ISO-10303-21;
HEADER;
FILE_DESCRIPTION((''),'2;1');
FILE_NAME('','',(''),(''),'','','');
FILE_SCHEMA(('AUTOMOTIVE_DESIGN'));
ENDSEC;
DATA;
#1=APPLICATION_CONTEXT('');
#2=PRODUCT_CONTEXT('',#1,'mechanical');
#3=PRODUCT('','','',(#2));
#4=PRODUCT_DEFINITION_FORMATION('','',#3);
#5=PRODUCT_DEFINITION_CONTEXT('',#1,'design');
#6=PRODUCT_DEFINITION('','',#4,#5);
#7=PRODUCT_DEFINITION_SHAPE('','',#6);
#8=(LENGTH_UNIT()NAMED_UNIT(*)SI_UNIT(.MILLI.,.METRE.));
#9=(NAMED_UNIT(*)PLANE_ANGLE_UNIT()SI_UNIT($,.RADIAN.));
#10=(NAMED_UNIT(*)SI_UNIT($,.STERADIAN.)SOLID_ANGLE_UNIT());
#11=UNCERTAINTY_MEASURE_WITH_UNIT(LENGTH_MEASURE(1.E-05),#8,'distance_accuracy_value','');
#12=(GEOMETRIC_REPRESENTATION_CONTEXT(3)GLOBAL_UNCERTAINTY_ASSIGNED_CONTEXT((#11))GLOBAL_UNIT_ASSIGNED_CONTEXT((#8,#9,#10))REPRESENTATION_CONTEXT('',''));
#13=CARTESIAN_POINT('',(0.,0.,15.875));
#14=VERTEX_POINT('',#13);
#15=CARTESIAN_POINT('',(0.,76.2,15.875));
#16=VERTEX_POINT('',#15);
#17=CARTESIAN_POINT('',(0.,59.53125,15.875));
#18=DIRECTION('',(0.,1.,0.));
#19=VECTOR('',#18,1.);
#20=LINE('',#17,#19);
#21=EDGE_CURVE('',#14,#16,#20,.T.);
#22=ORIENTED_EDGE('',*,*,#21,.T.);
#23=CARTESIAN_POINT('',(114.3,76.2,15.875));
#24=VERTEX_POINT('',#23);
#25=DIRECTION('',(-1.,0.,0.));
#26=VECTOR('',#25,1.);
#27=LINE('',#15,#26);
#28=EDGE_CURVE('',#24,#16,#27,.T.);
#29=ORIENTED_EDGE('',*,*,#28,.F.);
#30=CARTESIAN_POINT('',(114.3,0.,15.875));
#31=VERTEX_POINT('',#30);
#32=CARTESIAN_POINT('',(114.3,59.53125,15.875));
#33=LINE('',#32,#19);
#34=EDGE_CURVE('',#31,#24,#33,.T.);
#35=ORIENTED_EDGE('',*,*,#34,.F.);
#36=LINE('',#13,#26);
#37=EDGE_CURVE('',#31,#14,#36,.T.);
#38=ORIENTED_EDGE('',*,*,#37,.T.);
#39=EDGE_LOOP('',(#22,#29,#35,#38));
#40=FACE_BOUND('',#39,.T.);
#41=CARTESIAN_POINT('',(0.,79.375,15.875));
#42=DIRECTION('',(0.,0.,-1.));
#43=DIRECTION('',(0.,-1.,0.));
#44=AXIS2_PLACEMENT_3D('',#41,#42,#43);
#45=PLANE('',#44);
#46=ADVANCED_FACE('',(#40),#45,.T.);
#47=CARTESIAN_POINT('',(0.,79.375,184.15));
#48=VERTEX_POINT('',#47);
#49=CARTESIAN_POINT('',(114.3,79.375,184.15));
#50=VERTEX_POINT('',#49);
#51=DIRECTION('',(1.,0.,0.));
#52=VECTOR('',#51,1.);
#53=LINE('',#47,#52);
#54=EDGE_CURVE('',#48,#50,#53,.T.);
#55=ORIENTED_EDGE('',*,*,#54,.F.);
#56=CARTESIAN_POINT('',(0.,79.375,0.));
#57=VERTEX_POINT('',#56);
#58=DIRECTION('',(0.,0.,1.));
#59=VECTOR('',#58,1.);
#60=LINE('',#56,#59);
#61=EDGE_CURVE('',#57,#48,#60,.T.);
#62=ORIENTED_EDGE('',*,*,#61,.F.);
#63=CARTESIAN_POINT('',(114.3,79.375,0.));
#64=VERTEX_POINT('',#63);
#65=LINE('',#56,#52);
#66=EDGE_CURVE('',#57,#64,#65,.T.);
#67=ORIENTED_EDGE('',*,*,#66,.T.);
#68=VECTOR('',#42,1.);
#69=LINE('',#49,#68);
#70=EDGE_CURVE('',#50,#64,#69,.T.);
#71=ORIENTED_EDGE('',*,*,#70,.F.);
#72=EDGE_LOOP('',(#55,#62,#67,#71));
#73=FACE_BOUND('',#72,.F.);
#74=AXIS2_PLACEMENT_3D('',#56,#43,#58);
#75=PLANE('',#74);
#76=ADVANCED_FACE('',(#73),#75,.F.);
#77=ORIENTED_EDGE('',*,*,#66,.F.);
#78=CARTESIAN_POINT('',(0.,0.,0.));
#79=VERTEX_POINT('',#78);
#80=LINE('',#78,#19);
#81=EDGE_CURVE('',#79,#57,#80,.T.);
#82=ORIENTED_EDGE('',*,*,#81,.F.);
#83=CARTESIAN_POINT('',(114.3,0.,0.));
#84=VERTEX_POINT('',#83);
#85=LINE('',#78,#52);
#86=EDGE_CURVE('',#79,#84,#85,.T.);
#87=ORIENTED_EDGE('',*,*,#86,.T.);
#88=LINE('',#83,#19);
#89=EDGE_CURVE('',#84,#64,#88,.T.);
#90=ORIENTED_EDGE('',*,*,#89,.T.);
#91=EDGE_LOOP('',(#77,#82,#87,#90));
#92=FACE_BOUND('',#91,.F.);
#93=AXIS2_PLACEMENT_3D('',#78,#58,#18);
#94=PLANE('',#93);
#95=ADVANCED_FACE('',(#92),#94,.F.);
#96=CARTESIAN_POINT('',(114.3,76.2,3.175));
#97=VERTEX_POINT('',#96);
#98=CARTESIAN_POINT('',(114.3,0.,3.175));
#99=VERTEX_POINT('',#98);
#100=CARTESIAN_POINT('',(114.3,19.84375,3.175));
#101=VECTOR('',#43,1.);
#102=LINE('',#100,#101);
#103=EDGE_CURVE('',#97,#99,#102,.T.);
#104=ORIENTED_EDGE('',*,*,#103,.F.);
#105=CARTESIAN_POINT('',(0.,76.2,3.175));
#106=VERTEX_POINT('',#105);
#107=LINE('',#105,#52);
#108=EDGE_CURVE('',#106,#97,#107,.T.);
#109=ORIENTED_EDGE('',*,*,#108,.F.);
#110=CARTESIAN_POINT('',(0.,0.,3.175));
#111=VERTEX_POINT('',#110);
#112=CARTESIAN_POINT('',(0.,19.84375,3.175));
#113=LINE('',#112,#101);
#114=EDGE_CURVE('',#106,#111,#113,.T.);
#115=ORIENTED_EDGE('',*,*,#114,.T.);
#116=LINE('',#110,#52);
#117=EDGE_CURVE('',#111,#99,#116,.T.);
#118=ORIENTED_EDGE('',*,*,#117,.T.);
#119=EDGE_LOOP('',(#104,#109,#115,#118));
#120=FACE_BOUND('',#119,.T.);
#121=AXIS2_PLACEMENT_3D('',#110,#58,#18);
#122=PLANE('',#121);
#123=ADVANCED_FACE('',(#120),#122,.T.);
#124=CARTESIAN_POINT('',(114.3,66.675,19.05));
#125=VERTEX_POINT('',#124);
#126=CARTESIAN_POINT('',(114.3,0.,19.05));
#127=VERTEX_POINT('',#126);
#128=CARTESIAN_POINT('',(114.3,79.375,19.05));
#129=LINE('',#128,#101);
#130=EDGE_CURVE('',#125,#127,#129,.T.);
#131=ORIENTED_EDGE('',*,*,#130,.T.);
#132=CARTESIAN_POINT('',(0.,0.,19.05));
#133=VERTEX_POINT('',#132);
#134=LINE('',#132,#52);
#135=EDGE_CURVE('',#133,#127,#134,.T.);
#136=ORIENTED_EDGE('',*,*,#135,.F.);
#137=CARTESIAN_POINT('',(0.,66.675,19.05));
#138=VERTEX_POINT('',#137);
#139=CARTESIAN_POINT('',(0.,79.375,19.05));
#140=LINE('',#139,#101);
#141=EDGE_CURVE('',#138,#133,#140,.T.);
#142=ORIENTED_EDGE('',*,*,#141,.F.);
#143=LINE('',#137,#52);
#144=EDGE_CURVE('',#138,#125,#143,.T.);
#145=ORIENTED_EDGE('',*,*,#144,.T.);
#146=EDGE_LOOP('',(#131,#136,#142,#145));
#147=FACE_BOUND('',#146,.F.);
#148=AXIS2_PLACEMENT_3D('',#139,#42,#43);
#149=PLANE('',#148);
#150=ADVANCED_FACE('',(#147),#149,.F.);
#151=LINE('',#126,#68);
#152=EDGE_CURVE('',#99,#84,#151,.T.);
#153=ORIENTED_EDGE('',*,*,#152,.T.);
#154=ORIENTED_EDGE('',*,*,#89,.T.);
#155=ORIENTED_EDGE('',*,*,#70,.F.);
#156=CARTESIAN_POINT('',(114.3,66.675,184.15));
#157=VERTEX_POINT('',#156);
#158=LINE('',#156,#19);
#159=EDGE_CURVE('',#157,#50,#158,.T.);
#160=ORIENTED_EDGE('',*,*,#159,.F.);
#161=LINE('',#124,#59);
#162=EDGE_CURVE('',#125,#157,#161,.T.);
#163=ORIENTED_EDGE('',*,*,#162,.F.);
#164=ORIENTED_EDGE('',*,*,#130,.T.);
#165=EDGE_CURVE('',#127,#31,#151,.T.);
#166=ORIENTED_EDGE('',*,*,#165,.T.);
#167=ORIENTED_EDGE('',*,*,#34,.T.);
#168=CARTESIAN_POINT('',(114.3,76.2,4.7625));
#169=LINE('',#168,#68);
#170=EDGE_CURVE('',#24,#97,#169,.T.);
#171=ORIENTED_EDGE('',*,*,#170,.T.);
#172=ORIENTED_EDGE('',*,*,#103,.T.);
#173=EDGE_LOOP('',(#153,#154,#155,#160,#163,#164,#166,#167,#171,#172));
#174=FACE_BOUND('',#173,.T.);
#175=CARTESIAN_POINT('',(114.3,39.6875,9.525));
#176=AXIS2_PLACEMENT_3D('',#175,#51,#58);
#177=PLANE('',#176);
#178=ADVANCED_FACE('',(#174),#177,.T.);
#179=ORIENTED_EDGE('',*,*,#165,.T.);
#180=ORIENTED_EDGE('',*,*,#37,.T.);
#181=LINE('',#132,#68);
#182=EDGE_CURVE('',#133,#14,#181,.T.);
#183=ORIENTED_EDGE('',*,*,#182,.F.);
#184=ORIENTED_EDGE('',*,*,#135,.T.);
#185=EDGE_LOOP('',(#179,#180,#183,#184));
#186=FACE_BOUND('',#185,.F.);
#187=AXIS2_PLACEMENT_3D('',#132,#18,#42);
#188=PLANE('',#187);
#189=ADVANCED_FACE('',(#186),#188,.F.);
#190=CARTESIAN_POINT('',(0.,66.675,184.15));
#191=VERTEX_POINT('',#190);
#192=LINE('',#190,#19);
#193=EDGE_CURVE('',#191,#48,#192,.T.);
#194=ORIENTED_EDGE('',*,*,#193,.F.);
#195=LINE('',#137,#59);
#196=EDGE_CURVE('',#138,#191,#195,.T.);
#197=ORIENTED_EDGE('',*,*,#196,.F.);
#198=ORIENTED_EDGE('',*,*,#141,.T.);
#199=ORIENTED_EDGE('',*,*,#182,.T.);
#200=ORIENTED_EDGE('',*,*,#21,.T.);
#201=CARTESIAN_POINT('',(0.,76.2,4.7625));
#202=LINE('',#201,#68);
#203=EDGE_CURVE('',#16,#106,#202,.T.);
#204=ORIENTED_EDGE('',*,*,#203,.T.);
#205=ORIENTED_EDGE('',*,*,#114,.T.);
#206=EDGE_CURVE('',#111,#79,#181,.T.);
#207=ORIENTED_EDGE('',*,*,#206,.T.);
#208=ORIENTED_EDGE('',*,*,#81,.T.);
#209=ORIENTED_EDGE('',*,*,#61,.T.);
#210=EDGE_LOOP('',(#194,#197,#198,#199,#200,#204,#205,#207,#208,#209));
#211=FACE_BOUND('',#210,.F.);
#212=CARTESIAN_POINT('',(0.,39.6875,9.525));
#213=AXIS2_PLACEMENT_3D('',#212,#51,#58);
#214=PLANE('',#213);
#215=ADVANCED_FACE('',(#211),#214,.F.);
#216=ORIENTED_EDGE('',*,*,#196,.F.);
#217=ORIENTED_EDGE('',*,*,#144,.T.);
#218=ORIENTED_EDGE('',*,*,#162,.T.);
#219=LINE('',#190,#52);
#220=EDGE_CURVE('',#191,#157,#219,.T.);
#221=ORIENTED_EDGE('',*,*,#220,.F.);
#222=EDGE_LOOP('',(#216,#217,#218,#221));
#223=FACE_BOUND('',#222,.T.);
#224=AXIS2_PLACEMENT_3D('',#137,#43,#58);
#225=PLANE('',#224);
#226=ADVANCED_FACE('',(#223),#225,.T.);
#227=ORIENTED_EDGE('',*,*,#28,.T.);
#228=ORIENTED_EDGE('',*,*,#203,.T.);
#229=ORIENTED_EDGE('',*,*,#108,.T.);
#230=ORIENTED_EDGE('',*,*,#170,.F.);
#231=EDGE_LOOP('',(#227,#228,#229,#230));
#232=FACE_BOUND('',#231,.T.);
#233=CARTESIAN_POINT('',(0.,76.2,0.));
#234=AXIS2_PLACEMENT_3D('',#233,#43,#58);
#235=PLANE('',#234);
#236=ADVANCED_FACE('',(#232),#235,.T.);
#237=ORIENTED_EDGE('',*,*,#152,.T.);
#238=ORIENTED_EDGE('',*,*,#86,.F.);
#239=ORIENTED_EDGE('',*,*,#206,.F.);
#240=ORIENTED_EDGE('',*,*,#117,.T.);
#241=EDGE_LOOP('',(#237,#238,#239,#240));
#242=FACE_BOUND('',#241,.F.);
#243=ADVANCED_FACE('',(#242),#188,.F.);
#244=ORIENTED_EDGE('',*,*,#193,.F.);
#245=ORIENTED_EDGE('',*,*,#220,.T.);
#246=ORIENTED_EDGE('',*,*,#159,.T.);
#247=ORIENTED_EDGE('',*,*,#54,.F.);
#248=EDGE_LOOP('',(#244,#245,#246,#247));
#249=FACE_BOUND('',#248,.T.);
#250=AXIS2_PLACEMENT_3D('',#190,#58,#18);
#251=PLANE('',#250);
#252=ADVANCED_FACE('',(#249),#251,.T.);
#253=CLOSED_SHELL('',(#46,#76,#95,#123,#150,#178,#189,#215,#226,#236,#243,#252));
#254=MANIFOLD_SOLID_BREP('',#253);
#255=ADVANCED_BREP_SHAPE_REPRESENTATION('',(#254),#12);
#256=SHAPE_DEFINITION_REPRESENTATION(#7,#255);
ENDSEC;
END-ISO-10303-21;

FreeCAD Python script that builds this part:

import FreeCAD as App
import Part
import Sketcher

V = App.Vector
Q = App.Units.Quantity


def faces_at(feature, points):
    """Names of the faces that lie closest to the given points."""
    faces = feature.Shape.Faces
    near = lambda p: min(range(len(faces)), key=lambda i: faces[i].distToShape(Part.Vertex(*p))[0])
    return sorted({f"Face{near(p) + 1}" for p in points})


def add_polygon(sketch, points):
    """Adds a closed chain of lines whose ends are joined by coincident constraints."""
    first, n = sketch.GeometryCount, len(points)
    for a, b in zip(points, points[1:] + points[:1]):
        sketch.addGeometry(Part.LineSegment(App.Vector(*a, 0), App.Vector(*b, 0)), False)
    for i in range(n):
        sketch.addConstraint(Sketcher.Constraint("Coincident", first + i, 2, first + (i + 1) % n, 1))

doc = App.newDocument("Part")
body = doc.addObject("PartDesign::Body", "Body")

# Sketch on YZ plane
sketch1 = doc.addObject("Sketcher::SketchObject", "Sketch")
body.addObject(sketch1)
sketch1.AttachmentSupport = (doc.YZ_Plane, [""])
sketch1.MapMode = "FlatFace"
add_polygon(sketch1, [(79.375, 0), (79.375, 19.05), (0, 19.05), (0, 0)])  # lines 0-3
sketch1.addConstraint(Sketcher.Constraint("Vertical", 0))
sketch1.addConstraint(Sketcher.Constraint("Horizontal", 1))
sketch1.addConstraint(Sketcher.Constraint("Vertical", 2))
sketch1.addConstraint(Sketcher.Constraint("Horizontal", 3))
sketch1.addConstraint(Sketcher.Constraint("Coincident", 2, 2, -1, 1))
sketch1.addConstraint(Sketcher.Constraint("DistanceY", 0, 1, 0, 2, Q("0.75 in")))
sketch1.addConstraint(Sketcher.Constraint("DistanceX", 1, 2, 1, 1, Q("3.125 in")))
pad1 = doc.addObject("PartDesign::Pad", "Pad")
body.addObject(pad1)
pad1.Profile = sketch1
pad1.Length = Q("4.5 in")
doc.recompute()

thickness = doc.addObject("PartDesign::Thickness", "Thickness")
body.addObject(thickness)
thickness.Base = (pad1, faces_at(pad1, [(114.3, 65.352, 2.985), (94.107, 0, 16.066), (0, 65.352, 2.985)]))
thickness.Value = Q("0.125 in")
thickness.Reversed = True
thickness.Join = "Intersection"

# Sketch on YZ plane
sketch2 = doc.addObject("Sketcher::SketchObject", "Sketch001")
body.addObject(sketch2)
sketch2.AttachmentSupport = (doc.YZ_Plane, [""])
sketch2.MapMode = "FlatFace"
add_polygon(sketch2, [(79.375, 19.05), (79.375, 184.15), (66.675, 184.15), (66.675, 19.05)])  # lines 0-3
sketch2.addConstraint(Sketcher.Constraint("Vertical", 0))
sketch2.addConstraint(Sketcher.Constraint("Horizontal", 1))
sketch2.addConstraint(Sketcher.Constraint("Vertical", 2))
sketch2.addConstraint(Sketcher.Constraint("Horizontal", 3))
sketch2.addConstraint(Sketcher.Constraint("DistanceX", 1, 2, 1, 1, Q("0.5 in")))
sketch2.addConstraint(Sketcher.Constraint("DistanceY", 0, 1, 0, 2, Q("6.5 in")))
sketch2.addConstraint(Sketcher.Constraint("DistanceY", -1, 1, 0, 2, Q("7.25 in")))
sketch2.addConstraint(Sketcher.Constraint("DistanceX", -1, 1, 0, 2, Q("3.125 in")))
pad2 = doc.addObject("PartDesign::Pad", "Pad001")
body.addObject(pad2)
pad2.Profile = sketch2
pad2.Length = Q("4.5 in")

doc.recompute()
